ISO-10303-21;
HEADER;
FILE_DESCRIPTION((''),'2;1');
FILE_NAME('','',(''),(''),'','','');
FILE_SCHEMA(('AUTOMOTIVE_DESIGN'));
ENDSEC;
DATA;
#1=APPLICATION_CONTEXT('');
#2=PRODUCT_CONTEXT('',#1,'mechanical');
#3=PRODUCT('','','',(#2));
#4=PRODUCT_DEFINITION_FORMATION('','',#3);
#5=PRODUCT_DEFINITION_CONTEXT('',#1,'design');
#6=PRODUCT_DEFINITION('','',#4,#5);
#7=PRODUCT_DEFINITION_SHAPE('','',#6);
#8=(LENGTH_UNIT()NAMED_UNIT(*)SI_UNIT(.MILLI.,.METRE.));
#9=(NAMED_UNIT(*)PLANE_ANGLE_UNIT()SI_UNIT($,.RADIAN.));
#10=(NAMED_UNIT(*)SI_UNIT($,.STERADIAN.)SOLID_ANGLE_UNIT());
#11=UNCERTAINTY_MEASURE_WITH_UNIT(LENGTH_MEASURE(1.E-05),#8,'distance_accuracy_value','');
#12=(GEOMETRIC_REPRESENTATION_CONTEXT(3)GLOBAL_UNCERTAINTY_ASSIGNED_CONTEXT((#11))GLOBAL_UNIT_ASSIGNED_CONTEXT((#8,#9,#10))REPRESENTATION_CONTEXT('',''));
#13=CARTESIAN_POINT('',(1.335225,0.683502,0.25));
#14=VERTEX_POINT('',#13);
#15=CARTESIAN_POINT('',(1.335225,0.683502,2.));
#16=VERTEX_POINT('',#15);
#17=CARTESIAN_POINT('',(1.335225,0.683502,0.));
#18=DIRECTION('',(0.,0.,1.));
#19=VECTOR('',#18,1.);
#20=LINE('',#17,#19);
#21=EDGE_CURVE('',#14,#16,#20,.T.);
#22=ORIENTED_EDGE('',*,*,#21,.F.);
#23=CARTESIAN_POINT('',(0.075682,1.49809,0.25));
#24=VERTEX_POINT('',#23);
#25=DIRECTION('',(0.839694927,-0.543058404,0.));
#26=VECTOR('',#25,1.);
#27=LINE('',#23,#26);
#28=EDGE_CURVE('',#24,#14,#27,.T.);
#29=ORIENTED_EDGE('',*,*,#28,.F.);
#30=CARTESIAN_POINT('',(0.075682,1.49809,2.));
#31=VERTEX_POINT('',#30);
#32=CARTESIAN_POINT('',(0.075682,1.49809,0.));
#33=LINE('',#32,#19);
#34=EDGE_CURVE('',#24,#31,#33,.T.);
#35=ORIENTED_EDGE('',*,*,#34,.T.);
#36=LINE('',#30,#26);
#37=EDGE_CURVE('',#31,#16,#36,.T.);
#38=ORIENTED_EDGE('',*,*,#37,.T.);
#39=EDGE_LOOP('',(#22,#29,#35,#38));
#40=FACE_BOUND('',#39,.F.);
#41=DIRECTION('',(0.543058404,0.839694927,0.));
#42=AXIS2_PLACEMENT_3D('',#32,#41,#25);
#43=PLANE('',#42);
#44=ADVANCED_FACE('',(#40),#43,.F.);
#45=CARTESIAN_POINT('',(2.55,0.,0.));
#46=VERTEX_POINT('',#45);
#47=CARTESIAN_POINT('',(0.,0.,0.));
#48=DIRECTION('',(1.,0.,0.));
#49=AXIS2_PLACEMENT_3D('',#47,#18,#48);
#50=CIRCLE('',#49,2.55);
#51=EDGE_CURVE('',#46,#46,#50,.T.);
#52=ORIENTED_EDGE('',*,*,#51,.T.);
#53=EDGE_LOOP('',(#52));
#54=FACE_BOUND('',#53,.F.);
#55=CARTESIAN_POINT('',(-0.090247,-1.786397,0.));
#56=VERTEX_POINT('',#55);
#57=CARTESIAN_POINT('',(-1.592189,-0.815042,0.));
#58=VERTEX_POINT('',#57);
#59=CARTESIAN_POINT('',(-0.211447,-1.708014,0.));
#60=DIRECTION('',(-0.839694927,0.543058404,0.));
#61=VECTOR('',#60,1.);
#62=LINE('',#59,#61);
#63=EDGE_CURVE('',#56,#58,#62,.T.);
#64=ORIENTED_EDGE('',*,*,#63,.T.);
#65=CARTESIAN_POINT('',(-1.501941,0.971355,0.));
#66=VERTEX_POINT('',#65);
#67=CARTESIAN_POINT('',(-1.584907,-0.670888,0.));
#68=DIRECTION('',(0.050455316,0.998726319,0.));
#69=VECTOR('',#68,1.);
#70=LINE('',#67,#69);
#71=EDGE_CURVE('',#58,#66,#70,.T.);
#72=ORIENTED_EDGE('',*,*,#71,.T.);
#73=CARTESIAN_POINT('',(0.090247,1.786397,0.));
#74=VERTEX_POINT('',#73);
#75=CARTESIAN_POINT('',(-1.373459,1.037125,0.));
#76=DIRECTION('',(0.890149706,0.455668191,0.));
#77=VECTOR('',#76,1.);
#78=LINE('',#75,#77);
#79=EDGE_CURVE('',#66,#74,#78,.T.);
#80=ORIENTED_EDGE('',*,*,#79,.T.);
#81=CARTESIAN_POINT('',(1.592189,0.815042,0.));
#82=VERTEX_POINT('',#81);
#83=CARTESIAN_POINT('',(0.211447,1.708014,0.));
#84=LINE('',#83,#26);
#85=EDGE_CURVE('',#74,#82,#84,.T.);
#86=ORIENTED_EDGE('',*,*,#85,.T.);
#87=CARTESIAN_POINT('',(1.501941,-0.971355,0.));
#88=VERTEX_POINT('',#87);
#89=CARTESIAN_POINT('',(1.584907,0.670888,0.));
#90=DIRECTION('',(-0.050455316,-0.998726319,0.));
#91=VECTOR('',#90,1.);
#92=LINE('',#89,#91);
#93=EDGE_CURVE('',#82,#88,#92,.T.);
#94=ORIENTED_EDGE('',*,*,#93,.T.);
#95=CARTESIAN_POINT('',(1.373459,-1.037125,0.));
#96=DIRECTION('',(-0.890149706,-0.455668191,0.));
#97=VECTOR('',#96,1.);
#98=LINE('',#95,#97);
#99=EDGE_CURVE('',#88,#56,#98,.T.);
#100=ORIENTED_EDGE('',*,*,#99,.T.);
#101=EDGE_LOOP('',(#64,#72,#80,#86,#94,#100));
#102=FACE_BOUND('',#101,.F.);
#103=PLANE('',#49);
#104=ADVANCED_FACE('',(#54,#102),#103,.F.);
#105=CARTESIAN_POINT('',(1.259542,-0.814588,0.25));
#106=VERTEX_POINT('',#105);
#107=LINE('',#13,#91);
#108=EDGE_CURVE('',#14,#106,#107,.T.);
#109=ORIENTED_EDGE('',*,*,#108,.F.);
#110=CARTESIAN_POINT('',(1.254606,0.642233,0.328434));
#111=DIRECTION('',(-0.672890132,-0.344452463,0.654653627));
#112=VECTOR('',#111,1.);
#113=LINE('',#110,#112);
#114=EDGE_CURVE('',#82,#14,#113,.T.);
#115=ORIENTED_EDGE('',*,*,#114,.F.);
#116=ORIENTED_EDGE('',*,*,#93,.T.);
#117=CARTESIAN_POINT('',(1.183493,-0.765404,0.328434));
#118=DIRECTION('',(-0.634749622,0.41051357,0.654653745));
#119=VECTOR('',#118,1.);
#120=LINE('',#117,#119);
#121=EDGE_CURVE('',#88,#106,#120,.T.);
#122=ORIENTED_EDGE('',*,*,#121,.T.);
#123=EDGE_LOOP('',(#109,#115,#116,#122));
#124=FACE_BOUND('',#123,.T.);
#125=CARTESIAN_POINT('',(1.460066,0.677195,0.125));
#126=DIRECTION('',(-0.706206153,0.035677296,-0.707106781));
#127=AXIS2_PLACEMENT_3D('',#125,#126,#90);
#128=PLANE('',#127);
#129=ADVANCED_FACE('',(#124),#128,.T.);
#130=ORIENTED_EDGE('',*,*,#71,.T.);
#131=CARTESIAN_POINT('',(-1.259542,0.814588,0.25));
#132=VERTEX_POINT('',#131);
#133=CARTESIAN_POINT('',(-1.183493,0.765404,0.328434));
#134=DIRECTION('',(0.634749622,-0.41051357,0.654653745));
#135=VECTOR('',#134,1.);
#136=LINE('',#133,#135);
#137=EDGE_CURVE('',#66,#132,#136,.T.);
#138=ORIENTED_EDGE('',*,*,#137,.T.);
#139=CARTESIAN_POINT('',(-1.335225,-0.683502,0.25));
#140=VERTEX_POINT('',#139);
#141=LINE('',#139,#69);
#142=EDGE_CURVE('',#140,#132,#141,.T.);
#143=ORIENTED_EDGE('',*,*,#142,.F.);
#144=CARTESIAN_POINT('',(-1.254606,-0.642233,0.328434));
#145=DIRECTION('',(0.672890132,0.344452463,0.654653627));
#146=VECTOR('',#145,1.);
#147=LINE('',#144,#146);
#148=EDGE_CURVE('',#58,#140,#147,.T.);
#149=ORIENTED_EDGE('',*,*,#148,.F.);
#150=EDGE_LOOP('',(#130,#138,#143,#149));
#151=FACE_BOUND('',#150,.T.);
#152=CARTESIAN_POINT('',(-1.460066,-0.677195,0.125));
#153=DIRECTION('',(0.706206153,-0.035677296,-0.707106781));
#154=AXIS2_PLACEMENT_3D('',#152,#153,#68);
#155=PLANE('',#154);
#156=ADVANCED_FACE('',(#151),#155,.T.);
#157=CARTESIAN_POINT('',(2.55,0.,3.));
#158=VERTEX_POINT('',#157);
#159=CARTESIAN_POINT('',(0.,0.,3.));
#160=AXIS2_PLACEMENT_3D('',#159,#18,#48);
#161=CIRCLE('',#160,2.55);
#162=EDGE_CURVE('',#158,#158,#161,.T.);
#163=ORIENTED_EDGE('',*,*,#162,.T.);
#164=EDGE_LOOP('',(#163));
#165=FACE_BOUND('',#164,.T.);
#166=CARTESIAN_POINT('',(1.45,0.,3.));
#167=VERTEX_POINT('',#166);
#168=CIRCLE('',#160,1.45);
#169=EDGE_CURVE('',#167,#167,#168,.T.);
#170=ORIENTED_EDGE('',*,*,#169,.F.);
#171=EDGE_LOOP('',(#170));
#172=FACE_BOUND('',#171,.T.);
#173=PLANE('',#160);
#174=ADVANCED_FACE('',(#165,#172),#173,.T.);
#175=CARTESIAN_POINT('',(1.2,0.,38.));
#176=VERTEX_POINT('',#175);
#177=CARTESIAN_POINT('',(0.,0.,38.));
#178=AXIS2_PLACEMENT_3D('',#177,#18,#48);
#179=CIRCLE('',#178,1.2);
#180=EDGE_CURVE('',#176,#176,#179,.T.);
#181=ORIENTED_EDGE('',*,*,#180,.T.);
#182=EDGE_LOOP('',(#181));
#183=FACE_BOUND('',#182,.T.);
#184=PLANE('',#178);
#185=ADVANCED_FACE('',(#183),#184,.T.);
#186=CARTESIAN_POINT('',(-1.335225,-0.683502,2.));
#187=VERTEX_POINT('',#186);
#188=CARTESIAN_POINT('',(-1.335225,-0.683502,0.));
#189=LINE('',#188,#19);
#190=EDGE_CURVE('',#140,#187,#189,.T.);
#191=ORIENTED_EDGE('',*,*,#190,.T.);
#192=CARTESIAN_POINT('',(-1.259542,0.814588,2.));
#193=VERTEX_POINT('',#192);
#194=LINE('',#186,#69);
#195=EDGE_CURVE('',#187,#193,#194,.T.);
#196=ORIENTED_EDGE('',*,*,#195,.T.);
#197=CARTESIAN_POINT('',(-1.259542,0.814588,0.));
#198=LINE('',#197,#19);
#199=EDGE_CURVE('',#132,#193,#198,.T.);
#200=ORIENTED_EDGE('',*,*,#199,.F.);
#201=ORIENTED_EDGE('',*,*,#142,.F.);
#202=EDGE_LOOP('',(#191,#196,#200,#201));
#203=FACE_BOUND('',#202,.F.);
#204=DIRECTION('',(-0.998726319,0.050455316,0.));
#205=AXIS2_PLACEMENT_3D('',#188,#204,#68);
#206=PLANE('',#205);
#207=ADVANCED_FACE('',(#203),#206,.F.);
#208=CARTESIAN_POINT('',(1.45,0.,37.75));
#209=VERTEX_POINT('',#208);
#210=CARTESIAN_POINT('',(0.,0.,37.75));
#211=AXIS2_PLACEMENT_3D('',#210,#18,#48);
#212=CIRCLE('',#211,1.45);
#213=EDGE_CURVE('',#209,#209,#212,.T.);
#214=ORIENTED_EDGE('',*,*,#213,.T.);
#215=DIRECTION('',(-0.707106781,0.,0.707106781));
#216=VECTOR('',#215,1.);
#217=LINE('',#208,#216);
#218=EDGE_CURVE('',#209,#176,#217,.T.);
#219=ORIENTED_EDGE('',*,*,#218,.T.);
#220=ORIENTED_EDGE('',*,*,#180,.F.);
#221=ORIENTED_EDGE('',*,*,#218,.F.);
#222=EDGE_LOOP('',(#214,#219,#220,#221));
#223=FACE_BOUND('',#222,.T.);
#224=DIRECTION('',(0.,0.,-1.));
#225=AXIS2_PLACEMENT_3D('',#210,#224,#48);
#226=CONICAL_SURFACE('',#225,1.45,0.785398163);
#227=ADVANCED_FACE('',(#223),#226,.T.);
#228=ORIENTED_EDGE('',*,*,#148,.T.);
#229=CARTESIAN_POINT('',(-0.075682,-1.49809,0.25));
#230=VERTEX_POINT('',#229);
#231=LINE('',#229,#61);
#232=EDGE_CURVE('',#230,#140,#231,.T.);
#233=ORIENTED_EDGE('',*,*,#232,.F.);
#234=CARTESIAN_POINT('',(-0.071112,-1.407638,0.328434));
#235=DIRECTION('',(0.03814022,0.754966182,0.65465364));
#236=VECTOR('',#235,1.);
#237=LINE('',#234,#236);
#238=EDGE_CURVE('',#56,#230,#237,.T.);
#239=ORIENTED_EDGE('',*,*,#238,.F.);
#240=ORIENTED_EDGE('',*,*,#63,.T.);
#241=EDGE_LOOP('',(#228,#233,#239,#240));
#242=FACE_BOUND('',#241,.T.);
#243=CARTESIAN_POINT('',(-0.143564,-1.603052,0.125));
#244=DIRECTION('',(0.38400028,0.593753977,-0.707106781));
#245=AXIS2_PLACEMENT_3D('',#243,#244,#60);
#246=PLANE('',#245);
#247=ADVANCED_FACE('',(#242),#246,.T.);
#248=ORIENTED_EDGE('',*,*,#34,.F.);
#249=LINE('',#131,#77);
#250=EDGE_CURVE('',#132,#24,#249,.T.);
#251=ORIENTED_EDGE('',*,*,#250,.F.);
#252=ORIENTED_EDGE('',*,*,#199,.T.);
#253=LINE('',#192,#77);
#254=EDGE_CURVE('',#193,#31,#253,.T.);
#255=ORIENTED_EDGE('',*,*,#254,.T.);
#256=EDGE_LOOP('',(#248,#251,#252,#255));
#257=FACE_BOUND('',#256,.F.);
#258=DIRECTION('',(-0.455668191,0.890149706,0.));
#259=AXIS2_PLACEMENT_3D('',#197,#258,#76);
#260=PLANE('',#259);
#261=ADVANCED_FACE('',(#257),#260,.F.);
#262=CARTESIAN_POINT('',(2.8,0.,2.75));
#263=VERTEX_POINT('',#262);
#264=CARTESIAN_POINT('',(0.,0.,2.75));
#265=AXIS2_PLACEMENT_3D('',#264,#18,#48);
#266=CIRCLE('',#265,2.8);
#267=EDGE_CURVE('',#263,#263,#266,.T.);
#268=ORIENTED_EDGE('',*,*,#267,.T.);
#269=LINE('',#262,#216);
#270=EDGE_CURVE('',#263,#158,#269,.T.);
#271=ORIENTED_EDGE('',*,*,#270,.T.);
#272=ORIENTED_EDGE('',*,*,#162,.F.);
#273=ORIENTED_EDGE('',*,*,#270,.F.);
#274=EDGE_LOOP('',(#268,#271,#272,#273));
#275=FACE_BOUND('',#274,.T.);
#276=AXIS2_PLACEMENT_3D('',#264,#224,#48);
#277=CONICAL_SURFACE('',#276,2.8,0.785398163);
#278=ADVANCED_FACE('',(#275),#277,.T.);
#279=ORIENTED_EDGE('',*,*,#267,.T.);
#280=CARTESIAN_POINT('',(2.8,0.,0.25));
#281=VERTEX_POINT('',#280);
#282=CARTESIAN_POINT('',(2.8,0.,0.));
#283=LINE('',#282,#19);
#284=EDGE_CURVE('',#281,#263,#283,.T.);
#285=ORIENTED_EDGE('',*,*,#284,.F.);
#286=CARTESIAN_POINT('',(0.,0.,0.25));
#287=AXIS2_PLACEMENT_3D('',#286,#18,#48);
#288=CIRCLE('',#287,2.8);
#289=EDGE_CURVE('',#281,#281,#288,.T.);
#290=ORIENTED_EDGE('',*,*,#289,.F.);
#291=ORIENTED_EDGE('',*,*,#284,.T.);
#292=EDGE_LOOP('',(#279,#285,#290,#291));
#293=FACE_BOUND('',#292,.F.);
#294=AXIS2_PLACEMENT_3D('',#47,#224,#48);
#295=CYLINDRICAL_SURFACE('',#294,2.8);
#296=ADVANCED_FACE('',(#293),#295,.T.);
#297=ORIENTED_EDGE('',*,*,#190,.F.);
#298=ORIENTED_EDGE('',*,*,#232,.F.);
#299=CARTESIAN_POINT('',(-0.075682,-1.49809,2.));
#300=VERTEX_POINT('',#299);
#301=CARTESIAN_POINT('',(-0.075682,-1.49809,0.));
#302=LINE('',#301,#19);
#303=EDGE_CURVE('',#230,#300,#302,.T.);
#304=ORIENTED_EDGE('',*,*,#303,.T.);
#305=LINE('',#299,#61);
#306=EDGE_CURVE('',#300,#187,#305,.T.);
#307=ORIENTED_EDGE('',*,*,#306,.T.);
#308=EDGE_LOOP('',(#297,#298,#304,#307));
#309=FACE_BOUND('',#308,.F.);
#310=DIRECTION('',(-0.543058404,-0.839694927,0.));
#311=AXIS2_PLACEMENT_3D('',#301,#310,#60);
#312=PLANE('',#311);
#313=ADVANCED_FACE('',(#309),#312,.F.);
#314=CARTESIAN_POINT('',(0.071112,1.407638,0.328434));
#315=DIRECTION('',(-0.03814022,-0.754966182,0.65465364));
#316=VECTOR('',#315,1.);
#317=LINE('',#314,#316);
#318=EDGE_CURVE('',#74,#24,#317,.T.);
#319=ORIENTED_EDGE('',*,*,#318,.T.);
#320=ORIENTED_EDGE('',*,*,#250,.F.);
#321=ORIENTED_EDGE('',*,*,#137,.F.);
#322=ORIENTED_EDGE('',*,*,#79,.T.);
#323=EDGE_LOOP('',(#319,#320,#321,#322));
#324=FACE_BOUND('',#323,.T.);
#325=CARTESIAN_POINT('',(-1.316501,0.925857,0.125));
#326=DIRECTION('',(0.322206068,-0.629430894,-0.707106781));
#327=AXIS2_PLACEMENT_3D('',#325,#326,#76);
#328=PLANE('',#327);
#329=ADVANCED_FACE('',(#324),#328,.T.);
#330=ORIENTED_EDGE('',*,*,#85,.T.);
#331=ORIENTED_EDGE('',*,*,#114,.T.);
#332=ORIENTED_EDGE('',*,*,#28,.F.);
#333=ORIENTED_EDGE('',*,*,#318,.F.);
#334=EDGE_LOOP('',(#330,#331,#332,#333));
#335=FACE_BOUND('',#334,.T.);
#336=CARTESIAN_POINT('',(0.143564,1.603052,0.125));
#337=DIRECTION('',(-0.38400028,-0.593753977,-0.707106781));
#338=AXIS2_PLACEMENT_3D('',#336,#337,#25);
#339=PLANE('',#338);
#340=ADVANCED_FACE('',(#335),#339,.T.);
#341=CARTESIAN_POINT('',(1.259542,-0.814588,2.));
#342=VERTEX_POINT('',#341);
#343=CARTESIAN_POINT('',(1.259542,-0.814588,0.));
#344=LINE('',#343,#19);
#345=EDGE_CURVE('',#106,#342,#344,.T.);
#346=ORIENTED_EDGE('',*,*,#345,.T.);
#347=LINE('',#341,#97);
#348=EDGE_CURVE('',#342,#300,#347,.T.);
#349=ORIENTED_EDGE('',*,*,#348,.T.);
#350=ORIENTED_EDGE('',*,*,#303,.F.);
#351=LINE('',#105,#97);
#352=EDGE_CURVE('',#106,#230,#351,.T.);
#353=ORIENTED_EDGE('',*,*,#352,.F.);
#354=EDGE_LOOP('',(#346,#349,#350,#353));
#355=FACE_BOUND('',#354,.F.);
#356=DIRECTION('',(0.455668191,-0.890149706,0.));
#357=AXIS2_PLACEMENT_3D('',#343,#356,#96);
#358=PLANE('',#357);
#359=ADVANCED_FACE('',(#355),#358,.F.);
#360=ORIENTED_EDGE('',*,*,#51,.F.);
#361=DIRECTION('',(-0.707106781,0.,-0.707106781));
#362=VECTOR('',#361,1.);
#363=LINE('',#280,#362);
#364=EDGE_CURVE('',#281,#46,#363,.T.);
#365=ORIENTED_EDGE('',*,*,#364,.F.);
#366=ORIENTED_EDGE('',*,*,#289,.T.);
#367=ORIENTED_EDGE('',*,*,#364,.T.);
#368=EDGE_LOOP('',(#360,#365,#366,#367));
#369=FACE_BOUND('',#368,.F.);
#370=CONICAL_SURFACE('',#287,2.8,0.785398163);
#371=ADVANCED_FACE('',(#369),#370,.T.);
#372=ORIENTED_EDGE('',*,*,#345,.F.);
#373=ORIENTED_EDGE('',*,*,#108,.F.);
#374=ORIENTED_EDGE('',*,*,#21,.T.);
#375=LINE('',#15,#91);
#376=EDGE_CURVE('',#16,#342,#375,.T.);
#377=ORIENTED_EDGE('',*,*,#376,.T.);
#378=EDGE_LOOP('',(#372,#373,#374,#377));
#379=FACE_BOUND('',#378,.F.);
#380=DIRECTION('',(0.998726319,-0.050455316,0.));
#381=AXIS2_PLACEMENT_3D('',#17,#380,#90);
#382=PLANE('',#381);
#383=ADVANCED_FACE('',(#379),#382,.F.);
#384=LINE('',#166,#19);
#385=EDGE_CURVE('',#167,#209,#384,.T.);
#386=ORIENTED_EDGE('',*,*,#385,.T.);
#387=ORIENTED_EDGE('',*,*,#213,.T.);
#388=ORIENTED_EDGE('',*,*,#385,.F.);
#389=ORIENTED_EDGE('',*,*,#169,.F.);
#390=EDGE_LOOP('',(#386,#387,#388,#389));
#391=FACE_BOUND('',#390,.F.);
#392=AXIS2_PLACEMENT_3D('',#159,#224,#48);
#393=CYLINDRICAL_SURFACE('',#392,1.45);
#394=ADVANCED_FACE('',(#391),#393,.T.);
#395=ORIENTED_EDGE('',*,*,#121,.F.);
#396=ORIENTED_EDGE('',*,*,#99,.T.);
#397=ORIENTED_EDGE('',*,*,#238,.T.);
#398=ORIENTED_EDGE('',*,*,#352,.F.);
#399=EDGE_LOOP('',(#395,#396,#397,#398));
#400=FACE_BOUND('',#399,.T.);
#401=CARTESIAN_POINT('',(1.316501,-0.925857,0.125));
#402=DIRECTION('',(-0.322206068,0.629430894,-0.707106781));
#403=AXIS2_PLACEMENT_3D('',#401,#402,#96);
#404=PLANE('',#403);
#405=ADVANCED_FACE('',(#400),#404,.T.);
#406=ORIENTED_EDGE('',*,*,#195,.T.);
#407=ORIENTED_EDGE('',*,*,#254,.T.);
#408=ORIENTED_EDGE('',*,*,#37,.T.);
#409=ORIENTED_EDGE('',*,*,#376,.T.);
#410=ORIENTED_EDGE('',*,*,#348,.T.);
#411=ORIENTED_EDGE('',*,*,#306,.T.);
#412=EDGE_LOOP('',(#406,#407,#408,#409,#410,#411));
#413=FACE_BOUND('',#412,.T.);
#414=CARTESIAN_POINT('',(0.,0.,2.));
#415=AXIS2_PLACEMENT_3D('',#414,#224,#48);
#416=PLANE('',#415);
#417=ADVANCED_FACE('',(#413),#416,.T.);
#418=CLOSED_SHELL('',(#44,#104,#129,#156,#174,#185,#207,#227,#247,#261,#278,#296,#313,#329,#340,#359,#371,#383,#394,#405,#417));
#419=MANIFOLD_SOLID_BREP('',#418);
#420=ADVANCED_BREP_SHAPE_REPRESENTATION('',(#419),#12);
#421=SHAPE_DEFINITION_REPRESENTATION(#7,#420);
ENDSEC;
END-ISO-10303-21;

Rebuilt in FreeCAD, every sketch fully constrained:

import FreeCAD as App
import Part
import Sketcher

V = App.Vector
Q = App.Units.Quantity


def edges_at(feature, points):
    """Names of the edges that pass closest to the given points."""
    edges = feature.Shape.Edges
    near = lambda p: min(range(len(edges)), key=lambda i: edges[i].distToShape(Part.Vertex(*p))[0])
    return sorted({f"Edge{near(p) + 1}" for p in points})


def add_polygon(sketch, points):
    """Adds a closed chain of lines whose ends are joined by coincident constraints."""
    first, n = sketch.GeometryCount, len(points)
    for a, b in zip(points, points[1:] + points[:1]):
        sketch.addGeometry(Part.LineSegment(App.Vector(*a, 0), App.Vector(*b, 0)), False)
    for i in range(n):
        sketch.addConstraint(Sketcher.Constraint("Coincident", first + i, 2, first + (i + 1) % n, 1))

doc = App.newDocument("Part")
body = doc.addObject("PartDesign::Body", "Body")

# Sketch on XY plane
sketch1 = body.newObject("Sketcher::SketchObject", "Sketch")
sketch1.AttachmentSupport = (doc.getObject("XY_Plane"), [""])
sketch1.MapMode = "FlatFace"
sketch1.addGeometry(Part.Circle(V(0, 0, 0), V(0, 0, 1), 2.8), False)
sketch1.addConstraint(Sketcher.Constraint("Coincident", 0, 3, -1, 1))
sketch1.addConstraint(Sketcher.Constraint("Diameter", 0, Q("5.6 mm")))
pad1 = body.newObject("PartDesign::Pad", "Pad")
pad1.Profile = sketch1
pad1.Length = 3

# Sketch on XY plane
sketch2 = body.newObject("Sketcher::SketchObject", "Sketch001")
sketch2.AttachmentSupport = (doc.getObject("XY_Plane"), [""])
sketch2.MapMode = "FlatFace"
sketch2.AttachmentOffset = App.Placement(V(0, 0, 3), App.Rotation())
sketch2.addGeometry(Part.Circle(V(0, 0, 0), V(0, 0, 1), 1.4), False)
sketch2.addConstraint(Sketcher.Constraint("Coincident", 0, 3, -1, 1))
sketch2.addConstraint(Sketcher.Constraint("Diameter", 0, Q("2.9 mm")))
pad2 = body.newObject("PartDesign::Pad", "Pad001")
pad2.Profile = sketch2
pad2.Length = 35

# Sketch on XY plane
sketch3 = body.newObject("Sketcher::SketchObject", "Sketch002")
sketch3.AttachmentSupport = (doc.getObject("XY_Plane"), [""])
sketch3.MapMode = "FlatFace"
add_polygon(sketch3, [(1.3, -0.8), (-0.1, -1.5), (-1.3, -0.7), (-1.3, 0.8), (0.1, 1.5), (1.3, 0.7)])  # lines 0-5
sketch3.addConstraint(Sketcher.Constraint("Symmetric", 0, 2, 3, 2, -1, 1))
sketch3.addConstraint(Sketcher.Constraint("Symmetric", 1, 2, 4, 2, -1, 1))
sketch3.addConstraint(Sketcher.Constraint("Symmetric", 2, 2, 5, 2, -1, 1))
sketch3.addConstraint(Sketcher.Constraint("Equal", 0, 1))
sketch3.addConstraint(Sketcher.Constraint("Equal", 1, 2))
sketch3.addConstraint(Sketcher.Constraint("Distance", 0, Q("1.499999 mm")))
sketch3.addConstraint(Sketcher.Constraint("DistanceY", 2, 2, 3, 2, Q("0.683502 mm")))
sketch3.addConstraint(Sketcher.Constraint("DistanceY", 0, 2, -1, 1, Q("1.49809 mm")))
sketch3.addConstraint(Sketcher.Constraint("DistanceX", 2, 2, -1, 1, Q("1.259542 mm")))
pocket1 = body.newObject("PartDesign::Pocket", "Pocket")
pocket1.Profile = sketch3
pocket1.Length = 2
pocket1.Reversed = True
doc.recompute()

chamfer = body.newObject("PartDesign::Chamfer", "Chamfer")
chamfer.Base = (pocket1, edges_at(pocket1, [
    (-2.8, 0, 3),
    (-2.8, 0, 0),
    (1.297, -0.066, 0),
    (0.705, 1.091, 0),
    (-0.592, 1.156, 0),
    (-1.297, 0.066, 0),
    (-0.705, -1.091, 0),
    (0.592, -1.156, 0),
    (-1.45, 0, 38),
]))
chamfer.Size = 0.25

doc.recompute()
